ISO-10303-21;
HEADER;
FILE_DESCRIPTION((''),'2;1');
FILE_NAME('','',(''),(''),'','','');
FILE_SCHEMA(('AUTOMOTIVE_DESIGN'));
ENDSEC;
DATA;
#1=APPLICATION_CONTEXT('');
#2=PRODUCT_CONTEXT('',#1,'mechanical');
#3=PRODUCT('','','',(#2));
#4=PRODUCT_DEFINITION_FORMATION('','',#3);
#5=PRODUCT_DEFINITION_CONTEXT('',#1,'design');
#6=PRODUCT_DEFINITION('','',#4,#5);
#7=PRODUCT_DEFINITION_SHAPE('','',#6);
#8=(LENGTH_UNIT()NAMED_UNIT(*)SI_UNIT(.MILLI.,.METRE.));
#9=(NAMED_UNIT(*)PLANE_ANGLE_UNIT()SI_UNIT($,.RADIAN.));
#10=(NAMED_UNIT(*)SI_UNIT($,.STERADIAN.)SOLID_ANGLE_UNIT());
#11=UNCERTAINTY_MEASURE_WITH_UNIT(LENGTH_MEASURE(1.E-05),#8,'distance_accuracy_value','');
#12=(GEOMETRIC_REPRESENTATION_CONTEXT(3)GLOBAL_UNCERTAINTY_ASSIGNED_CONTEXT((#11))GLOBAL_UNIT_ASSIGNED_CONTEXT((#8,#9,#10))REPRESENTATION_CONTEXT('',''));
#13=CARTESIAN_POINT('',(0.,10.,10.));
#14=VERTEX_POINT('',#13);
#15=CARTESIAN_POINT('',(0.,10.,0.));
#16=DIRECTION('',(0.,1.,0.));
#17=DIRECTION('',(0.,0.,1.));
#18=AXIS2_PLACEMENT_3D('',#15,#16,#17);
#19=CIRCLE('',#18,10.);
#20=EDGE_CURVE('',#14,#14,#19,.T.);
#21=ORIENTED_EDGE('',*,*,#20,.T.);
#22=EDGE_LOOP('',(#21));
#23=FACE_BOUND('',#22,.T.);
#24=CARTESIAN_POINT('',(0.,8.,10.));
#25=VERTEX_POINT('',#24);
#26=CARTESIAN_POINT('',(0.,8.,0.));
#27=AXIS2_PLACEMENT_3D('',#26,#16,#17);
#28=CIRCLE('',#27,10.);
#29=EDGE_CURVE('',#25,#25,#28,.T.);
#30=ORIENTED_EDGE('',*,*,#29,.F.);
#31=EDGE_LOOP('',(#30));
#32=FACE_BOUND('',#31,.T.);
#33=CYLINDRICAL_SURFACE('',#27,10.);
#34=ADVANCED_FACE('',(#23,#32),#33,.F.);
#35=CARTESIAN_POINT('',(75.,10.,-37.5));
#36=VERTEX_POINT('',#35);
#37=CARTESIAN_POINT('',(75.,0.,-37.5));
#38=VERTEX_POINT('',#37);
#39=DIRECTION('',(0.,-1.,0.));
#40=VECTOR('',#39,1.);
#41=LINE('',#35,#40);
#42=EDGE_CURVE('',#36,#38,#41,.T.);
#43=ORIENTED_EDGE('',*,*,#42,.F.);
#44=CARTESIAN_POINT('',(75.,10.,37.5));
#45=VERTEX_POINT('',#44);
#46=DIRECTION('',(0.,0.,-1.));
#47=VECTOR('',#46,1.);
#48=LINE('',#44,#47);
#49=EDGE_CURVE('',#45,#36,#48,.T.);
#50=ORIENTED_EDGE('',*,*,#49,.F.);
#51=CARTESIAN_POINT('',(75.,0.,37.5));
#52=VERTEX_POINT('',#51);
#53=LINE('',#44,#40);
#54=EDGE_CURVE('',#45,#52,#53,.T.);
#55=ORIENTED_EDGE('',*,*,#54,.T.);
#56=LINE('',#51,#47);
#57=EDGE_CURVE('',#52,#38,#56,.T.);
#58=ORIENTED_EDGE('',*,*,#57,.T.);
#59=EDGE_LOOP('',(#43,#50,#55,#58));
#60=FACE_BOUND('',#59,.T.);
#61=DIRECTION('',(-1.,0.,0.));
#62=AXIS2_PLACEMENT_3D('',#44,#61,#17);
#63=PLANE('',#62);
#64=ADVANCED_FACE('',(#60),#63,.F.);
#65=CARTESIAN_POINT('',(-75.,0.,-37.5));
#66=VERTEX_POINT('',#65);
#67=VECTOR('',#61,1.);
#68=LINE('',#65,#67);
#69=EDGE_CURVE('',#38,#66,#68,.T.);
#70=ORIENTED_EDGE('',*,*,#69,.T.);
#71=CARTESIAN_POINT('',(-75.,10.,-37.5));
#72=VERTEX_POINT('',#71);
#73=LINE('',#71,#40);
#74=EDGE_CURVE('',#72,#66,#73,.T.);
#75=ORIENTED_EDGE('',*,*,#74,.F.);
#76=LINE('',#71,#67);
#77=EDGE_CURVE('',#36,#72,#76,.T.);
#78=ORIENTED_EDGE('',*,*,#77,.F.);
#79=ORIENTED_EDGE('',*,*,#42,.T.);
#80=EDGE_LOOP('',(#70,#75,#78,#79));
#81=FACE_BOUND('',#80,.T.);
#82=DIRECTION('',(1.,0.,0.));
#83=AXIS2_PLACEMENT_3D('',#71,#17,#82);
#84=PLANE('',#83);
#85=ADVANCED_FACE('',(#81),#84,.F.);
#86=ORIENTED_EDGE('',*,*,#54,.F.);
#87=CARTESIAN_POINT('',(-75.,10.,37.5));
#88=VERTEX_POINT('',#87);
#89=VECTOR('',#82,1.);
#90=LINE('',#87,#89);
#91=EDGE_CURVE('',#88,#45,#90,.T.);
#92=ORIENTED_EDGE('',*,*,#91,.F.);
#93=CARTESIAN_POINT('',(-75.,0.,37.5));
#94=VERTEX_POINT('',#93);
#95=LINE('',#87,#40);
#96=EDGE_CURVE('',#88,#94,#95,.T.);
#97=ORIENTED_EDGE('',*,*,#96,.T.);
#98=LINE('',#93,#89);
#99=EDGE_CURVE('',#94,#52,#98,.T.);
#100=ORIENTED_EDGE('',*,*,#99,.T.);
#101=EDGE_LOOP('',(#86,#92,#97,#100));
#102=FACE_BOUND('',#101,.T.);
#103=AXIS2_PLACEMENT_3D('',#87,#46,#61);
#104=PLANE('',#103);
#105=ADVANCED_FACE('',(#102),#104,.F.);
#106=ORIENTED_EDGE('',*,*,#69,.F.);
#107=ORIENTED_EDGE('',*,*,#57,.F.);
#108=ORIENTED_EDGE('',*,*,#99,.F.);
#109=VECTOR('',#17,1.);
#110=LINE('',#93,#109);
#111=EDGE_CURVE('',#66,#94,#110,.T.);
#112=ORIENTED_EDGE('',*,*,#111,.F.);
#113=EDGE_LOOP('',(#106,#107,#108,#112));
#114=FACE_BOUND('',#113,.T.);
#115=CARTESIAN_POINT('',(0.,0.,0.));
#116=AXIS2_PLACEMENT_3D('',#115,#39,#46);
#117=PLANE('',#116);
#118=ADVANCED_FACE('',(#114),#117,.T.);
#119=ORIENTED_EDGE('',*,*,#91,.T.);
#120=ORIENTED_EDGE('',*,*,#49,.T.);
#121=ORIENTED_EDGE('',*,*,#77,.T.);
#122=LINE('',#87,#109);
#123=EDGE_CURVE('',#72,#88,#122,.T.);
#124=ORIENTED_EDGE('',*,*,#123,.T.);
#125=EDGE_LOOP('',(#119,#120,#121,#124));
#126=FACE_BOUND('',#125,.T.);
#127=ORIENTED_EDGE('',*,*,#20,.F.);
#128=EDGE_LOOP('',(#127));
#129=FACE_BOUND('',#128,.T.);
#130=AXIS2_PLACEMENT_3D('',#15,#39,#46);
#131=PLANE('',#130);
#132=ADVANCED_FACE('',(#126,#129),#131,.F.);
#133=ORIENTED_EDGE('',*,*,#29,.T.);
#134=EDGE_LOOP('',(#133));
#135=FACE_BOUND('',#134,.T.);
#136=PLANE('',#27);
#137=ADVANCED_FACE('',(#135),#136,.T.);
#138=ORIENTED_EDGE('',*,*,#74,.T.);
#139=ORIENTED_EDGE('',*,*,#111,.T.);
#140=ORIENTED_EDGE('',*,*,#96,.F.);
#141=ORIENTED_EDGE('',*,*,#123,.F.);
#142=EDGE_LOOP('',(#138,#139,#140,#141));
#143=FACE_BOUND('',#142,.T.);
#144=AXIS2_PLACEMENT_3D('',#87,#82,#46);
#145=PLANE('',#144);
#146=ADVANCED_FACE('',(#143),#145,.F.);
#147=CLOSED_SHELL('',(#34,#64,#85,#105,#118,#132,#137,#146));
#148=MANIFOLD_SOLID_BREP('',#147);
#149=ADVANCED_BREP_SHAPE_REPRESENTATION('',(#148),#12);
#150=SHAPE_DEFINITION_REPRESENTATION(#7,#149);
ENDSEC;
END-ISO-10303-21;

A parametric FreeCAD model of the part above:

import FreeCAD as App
import Part
import Sketcher

V = App.Vector

doc = App.newDocument("Part")
body = doc.addObject("PartDesign::Body", "Body")

# Sketch on XZ plane
sketch1 = body.newObject("Sketcher::SketchObject", "Sketch")
sketch1.AttachmentSupport = (doc.getObject("XZ_Plane"), [""])
sketch1.MapMode = "FlatFace"
sketch1.addGeometry([
    Part.LineSegment(V(-75, -38, 0), V(-75, 38, 0)),
    Part.LineSegment(V(-75, 38, 0), V(75, 38, 0)),
    Part.LineSegment(V(75, 38, 0), V(75, -38, 0)),
    Part.LineSegment(V(75, -38, 0), V(-75, -38, 0)),
], False)
sketch1.addConstraint([
    Sketcher.Constraint("Coincident", 0, 2, 1, 1),
    Sketcher.Constraint("Coincident", 1, 2, 2, 1),
    Sketcher.Constraint("Coincident", 2, 2, 3, 1),
    Sketcher.Constraint("Coincident", 3, 2, 0, 1),
    Sketcher.Constraint("Vertical", 0),
    Sketcher.Constraint("Horizontal", 1),
    Sketcher.Constraint("Vertical", 2),
    Sketcher.Constraint("Horizontal", 3),
    Sketcher.Constraint("Symmetric", 0, 2, 2, 2, -1, 1),
    Sketcher.Constraint("DistanceX", 1, 1, 1, 2, 150.0),
    Sketcher.Constraint("DistanceY", 0, 1, 0, 2, 75.0),
])
pad1 = body.newObject("PartDesign::Pad", "Pad")
pad1.Profile = sketch1
pad1.Length = 10
pad1.Reversed = True

# Sketch on XZ plane
sketch2 = body.newObject("Sketcher::SketchObject", "Sketch001")
sketch2.AttachmentSupport = (doc.getObject("XZ_Plane"), [""])
sketch2.MapMode = "FlatFace"
sketch2.AttachmentOffset = App.Placement(V(0, 0, -10), App.Rotation())
sketch2.addGeometry(Part.Circle(V(0, 0, 0), V(0, 0, 1), 10), False)
sketch2.addConstraint([
    Sketcher.Constraint("Coincident", 0, 3, -1, 1),
    Sketcher.Constraint("Diameter", 0, 20.0),
])
pocket1 = body.newObject("PartDesign::Pocket", "Pocket")
pocket1.Profile = sketch2
pocket1.Length = 2
pocket1.Reversed = True

doc.recompute()
